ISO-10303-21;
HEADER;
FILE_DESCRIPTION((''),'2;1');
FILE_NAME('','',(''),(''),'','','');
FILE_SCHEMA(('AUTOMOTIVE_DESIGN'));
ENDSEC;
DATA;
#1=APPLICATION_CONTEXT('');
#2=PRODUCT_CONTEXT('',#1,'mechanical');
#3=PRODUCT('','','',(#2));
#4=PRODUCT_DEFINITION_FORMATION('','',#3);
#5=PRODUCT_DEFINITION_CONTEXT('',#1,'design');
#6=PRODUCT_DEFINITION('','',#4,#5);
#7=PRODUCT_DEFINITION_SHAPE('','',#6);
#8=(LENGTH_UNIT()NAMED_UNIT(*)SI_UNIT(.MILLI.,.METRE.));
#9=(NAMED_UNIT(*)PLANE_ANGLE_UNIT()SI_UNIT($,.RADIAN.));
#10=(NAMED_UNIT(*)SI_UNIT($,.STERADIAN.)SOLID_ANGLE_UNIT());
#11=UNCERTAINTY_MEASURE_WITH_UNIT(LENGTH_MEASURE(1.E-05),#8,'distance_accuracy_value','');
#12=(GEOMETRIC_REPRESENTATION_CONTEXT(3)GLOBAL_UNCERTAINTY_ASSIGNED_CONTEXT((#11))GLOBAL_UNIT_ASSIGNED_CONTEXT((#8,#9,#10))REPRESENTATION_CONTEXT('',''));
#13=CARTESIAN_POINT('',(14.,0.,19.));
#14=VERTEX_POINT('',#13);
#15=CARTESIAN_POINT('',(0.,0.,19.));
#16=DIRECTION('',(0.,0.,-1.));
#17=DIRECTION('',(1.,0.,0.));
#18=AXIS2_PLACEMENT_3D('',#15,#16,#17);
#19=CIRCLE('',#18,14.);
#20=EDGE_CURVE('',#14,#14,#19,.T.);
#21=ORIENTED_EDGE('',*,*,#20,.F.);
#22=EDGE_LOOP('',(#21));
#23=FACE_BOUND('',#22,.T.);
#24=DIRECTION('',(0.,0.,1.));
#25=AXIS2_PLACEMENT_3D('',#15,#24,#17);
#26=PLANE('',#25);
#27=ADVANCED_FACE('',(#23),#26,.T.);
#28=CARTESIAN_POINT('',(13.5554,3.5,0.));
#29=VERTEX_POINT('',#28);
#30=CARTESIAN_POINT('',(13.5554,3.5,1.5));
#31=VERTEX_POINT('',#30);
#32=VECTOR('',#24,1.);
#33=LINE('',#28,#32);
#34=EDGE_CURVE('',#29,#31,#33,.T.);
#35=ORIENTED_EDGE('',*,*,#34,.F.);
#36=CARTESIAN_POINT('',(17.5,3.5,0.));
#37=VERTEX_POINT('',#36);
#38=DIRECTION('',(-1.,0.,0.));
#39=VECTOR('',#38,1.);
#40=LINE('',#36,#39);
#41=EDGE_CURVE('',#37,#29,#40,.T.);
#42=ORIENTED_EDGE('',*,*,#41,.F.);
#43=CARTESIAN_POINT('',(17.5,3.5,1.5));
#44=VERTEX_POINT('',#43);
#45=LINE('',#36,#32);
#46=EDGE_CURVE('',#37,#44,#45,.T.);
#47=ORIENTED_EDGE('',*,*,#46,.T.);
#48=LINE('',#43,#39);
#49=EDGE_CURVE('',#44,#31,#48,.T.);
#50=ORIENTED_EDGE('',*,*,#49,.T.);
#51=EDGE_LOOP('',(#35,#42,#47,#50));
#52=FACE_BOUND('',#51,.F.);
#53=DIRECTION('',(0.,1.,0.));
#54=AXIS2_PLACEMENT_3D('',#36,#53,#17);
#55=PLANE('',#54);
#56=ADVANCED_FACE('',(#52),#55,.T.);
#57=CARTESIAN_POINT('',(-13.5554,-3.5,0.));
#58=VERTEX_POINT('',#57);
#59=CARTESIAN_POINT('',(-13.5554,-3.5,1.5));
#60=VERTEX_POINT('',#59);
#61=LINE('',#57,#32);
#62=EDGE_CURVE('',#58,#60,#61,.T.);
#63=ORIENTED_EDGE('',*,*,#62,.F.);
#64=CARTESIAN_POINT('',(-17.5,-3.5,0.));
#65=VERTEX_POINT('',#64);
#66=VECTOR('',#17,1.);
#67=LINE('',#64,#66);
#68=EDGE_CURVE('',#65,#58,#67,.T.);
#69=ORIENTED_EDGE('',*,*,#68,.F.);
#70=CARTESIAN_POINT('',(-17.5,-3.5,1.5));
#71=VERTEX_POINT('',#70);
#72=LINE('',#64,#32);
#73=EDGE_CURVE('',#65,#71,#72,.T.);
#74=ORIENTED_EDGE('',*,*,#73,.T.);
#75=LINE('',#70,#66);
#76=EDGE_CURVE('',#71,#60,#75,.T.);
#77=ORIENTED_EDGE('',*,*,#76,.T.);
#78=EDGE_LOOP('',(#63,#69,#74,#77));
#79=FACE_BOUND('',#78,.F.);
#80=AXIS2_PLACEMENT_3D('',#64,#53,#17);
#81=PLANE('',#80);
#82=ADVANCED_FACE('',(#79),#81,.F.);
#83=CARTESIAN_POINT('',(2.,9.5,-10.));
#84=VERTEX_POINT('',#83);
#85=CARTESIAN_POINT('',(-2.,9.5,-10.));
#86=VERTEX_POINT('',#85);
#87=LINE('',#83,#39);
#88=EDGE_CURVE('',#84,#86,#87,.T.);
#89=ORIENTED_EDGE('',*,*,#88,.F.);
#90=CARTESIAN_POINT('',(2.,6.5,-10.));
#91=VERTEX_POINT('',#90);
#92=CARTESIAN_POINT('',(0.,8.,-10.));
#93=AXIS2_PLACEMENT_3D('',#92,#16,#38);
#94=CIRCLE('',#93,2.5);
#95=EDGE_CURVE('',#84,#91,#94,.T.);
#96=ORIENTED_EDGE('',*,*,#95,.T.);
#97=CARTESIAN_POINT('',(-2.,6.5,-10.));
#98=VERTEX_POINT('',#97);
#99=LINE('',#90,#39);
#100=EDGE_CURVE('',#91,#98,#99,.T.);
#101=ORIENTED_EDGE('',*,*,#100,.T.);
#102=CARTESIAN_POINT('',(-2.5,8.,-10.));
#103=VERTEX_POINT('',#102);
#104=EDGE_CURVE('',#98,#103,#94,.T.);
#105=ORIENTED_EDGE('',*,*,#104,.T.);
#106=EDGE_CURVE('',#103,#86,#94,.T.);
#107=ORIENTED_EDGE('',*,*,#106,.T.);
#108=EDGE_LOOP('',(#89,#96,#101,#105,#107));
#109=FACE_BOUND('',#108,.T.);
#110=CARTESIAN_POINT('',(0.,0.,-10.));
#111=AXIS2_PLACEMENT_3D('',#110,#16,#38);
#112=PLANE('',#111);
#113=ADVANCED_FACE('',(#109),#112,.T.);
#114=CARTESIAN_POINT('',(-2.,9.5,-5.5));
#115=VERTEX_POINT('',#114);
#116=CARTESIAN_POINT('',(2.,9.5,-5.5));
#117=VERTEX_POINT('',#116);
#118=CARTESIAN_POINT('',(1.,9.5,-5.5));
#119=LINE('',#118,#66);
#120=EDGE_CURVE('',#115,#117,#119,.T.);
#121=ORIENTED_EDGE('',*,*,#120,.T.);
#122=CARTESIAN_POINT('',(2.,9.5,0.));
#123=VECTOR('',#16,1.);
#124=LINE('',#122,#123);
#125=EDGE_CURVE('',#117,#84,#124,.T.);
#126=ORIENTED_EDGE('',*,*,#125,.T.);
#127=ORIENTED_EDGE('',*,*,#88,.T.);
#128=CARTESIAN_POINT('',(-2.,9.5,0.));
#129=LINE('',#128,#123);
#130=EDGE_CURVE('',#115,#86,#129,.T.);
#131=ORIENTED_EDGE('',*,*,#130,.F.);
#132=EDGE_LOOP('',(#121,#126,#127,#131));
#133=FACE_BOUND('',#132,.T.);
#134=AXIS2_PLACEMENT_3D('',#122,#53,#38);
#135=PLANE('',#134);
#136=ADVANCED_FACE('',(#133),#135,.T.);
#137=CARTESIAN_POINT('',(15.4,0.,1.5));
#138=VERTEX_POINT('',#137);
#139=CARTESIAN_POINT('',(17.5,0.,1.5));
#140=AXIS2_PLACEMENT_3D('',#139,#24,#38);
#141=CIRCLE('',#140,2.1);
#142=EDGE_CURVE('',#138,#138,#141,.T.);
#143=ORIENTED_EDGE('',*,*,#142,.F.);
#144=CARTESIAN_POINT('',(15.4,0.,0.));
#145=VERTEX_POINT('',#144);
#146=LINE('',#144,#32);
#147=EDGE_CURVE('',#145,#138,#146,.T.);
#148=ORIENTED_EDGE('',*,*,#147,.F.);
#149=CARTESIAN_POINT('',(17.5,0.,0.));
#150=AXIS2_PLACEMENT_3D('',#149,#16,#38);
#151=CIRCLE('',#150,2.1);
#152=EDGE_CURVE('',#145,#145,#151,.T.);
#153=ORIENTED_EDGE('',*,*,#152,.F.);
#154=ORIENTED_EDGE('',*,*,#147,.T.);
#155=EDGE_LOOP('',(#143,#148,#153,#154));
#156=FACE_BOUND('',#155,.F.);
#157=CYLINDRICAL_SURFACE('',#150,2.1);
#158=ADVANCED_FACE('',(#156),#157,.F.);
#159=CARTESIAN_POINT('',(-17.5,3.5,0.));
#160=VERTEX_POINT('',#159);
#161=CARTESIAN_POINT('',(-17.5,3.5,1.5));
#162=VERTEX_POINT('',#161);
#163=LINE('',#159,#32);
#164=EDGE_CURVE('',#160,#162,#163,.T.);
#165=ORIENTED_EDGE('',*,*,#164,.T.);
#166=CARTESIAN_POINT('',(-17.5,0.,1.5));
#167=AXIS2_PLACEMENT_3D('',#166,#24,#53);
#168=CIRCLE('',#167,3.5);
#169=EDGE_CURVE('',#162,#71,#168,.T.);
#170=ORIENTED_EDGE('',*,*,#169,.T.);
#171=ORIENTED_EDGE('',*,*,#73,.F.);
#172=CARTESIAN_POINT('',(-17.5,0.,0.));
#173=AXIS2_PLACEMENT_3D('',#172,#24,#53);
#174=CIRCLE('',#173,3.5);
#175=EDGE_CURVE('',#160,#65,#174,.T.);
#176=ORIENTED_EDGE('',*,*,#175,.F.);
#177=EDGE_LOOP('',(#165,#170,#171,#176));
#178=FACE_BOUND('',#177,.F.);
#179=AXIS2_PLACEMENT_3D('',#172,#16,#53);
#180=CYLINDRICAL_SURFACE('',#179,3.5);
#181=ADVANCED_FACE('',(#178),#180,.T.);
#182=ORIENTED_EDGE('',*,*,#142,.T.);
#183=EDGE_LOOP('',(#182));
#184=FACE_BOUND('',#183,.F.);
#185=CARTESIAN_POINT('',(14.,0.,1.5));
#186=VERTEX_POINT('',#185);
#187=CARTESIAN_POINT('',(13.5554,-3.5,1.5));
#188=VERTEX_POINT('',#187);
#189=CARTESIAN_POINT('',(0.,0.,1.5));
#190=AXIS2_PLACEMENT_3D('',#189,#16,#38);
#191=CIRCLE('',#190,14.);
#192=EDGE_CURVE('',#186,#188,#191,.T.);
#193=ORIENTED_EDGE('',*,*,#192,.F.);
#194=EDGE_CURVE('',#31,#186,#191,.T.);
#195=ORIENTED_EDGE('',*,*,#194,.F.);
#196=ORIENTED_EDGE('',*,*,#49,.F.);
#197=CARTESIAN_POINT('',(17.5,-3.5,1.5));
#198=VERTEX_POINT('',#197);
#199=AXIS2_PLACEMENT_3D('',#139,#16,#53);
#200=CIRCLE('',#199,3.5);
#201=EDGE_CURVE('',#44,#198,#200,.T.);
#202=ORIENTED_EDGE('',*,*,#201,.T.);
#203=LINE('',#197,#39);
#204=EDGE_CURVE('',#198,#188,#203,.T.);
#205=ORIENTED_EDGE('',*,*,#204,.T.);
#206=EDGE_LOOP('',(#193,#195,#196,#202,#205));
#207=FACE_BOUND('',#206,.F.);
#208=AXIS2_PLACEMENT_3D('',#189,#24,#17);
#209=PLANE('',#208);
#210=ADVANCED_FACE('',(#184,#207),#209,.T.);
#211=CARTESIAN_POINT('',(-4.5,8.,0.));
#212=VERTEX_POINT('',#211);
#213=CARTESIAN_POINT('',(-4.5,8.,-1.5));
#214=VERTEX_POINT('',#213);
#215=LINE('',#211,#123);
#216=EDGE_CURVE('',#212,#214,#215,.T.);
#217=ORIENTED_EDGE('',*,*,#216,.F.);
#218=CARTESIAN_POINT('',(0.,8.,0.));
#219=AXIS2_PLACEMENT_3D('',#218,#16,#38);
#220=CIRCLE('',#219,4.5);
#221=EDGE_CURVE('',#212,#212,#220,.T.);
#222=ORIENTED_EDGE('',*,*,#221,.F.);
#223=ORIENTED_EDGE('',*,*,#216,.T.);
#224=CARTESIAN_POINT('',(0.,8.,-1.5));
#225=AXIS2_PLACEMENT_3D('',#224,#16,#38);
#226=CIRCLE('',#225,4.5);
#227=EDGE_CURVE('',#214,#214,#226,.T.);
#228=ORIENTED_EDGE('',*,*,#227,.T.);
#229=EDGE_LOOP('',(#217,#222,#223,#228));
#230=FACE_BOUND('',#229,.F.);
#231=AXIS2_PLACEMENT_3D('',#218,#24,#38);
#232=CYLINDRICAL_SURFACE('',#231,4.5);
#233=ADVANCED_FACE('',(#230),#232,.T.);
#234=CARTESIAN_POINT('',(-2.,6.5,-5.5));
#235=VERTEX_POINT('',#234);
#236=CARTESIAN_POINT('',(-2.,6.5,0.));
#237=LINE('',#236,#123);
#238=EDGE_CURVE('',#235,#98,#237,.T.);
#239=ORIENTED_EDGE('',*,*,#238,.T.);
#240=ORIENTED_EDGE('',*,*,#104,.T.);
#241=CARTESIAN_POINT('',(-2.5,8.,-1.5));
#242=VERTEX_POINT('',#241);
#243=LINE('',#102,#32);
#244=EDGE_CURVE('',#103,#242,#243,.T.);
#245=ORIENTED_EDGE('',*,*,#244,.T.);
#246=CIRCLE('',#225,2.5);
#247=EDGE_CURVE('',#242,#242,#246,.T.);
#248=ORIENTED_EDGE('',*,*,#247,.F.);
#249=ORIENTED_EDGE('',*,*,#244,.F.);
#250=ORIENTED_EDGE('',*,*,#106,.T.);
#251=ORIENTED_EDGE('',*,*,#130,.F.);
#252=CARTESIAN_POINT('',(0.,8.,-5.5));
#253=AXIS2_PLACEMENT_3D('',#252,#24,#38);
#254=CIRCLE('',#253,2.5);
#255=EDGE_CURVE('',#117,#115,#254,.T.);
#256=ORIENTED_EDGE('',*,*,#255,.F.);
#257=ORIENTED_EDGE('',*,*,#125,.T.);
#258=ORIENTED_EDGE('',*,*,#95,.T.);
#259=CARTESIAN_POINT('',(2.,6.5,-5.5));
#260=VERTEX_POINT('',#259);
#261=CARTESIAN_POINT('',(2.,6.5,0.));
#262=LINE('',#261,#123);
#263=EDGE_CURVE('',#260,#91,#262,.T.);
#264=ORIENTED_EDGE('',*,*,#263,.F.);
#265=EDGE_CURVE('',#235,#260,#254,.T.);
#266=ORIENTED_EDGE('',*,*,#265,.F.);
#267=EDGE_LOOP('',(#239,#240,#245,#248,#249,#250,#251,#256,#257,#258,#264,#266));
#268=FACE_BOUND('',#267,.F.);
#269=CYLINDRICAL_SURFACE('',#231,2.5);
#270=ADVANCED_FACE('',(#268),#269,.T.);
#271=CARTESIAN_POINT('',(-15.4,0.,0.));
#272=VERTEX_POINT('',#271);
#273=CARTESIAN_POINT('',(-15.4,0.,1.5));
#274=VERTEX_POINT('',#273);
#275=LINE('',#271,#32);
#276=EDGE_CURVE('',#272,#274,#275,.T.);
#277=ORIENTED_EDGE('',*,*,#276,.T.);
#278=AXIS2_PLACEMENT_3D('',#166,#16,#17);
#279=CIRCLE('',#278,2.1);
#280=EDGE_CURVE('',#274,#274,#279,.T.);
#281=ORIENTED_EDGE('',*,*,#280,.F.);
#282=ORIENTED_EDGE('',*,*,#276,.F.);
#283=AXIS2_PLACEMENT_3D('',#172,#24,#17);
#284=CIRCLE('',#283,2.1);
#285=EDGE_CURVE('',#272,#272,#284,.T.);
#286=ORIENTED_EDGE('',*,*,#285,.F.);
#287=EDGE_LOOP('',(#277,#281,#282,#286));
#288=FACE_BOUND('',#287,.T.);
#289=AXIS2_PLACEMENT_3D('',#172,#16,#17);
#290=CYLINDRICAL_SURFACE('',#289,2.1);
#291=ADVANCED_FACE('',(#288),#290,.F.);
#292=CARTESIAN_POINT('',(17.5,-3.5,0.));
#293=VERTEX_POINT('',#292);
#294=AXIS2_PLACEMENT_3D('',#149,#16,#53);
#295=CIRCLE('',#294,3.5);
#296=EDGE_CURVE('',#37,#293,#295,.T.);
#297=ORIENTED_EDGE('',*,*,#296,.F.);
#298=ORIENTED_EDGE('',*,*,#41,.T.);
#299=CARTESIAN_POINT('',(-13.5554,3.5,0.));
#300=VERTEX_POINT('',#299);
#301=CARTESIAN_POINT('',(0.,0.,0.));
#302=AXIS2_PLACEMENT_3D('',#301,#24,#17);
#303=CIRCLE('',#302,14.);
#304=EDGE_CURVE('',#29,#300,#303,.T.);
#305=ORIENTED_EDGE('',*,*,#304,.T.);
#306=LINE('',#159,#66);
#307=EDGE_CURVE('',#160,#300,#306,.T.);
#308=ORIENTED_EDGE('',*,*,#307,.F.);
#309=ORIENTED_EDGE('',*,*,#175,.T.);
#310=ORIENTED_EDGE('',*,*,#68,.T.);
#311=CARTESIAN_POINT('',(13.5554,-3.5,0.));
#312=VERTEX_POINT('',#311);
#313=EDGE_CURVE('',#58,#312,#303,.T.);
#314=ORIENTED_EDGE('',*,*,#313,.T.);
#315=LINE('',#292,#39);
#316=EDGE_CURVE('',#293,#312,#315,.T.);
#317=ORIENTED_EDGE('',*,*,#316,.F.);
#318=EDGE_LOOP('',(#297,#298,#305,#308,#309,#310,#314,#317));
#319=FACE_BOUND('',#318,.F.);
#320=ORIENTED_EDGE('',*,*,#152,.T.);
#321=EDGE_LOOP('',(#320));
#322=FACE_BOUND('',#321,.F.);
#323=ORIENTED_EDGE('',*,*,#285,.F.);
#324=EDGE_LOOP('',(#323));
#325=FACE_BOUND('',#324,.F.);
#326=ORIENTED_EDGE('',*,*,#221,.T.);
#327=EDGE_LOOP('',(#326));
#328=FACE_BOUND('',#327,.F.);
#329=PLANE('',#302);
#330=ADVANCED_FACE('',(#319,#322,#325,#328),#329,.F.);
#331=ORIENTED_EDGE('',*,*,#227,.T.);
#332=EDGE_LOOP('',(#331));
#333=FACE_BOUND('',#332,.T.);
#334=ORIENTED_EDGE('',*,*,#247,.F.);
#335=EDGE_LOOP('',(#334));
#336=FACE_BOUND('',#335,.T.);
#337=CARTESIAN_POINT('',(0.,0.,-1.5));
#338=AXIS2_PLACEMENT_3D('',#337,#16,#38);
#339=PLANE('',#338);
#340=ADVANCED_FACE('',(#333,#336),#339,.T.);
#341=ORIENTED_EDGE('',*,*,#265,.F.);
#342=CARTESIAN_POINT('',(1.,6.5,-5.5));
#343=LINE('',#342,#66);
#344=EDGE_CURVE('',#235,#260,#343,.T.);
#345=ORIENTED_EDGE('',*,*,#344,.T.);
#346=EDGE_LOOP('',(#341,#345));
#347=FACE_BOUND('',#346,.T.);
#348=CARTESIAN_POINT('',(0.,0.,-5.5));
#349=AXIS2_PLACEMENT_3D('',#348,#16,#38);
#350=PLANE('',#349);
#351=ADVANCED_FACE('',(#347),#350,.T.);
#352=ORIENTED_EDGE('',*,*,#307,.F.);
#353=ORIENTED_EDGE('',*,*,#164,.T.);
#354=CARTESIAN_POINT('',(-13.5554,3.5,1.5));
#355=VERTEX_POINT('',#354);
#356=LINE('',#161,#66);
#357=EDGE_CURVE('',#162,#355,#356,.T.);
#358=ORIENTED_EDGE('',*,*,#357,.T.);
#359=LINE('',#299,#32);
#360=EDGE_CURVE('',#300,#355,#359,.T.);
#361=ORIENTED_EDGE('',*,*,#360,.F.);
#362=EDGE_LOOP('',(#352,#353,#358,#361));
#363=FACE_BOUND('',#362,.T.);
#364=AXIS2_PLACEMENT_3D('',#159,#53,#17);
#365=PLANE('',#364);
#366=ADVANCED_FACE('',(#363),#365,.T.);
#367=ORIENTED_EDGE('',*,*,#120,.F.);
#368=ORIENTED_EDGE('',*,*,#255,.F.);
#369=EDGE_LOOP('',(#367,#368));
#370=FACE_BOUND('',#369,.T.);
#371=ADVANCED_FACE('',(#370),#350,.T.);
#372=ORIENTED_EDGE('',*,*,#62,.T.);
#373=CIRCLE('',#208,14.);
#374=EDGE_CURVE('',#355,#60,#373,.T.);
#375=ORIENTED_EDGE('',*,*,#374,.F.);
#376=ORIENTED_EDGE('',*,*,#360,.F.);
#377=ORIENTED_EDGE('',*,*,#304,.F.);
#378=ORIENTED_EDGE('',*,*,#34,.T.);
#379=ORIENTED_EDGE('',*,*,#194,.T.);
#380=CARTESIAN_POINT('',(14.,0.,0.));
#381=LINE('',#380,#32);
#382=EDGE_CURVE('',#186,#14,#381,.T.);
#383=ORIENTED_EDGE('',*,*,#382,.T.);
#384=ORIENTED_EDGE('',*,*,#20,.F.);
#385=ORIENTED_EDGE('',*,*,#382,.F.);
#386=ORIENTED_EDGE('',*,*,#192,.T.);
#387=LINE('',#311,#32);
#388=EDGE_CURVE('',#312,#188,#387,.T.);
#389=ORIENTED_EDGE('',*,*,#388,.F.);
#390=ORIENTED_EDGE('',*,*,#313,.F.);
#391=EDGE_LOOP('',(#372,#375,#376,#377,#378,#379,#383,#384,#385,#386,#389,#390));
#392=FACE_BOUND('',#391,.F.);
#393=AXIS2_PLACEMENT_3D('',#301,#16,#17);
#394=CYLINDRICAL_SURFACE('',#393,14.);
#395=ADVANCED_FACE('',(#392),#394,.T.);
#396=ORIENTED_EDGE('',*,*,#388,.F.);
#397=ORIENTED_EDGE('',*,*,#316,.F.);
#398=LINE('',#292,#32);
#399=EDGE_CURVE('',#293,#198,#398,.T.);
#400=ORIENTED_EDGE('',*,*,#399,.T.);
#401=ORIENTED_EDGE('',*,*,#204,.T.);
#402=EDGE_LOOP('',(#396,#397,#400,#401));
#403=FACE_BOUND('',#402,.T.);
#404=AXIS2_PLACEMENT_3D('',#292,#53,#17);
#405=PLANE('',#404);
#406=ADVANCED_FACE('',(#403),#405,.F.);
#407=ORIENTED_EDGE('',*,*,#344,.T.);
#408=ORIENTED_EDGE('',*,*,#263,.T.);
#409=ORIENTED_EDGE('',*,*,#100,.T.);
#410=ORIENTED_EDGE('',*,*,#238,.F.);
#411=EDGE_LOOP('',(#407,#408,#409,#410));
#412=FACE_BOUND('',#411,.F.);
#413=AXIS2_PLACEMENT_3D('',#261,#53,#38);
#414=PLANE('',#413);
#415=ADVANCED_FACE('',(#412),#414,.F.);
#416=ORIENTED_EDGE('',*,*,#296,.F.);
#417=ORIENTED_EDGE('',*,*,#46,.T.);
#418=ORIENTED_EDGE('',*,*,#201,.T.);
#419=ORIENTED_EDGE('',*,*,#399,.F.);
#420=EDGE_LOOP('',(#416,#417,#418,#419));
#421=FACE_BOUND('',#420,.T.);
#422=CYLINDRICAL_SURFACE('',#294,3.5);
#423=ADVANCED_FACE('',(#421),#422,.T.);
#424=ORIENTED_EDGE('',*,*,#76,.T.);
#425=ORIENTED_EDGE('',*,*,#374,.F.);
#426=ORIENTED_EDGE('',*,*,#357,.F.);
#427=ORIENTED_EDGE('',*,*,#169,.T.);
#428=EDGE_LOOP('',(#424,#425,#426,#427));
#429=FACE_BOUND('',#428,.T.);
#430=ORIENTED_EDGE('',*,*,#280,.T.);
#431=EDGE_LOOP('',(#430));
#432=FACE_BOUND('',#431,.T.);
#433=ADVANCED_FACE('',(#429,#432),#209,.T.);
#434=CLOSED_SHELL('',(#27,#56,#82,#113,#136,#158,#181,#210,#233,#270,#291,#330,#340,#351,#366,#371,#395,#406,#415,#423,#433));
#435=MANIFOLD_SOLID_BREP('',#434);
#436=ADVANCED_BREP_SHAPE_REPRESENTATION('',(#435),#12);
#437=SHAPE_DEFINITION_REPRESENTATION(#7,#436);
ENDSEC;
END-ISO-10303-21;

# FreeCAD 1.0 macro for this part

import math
import FreeCAD as App
import Part
import Sketcher
Q = App.Units.Quantity

doc = App.newDocument("Part")
body = doc.addObject("PartDesign::Body", "Body")

# Sketch on XY plane
sketch1 = body.newObject("Sketcher::SketchObject", "Sketch")
sketch1.AttachmentSupport = (doc.getObject("XY_Plane"), [""])
sketch1.MapMode = "FlatFace"
sketch1.addGeometry(Part.Circle(App.Vector(0, 0, 0), App.Vector(0, 0, 1), 14), False)
sketch1.addConstraint([
    Sketcher.Constraint("Coincident", 0, 3, -1, 1),
    Sketcher.Constraint("Diameter", 0, Q("28 mm")),
])
pad1 = body.newObject("PartDesign::Pad", "Pad")
pad1.Profile = sketch1
pad1.Length = 19

# Sketch on XY plane
sketch2 = body.newObject("Sketcher::SketchObject", "Sketch001")
sketch2.AttachmentSupport = (doc.getObject("XY_Plane"), [""])
sketch2.MapMode = "FlatFace"
sketch2.addGeometry([
    Part.ArcOfCircle(Part.Circle(App.Vector(0, 0, 0), App.Vector(0, 0, 1), 14), math.radians(165.522445), math.radians(194.477555)),  # 0
    Part.LineSegment(App.Vector(-13.5554, 3.5, 0), App.Vector(-17.5, 3.5, 0)),  # 1
    Part.ArcOfCircle(Part.Circle(App.Vector(-17.5, 0, 0), App.Vector(0, 0, 1), 3.5), math.radians(90), math.radians(270)),  # 2
    Part.LineSegment(App.Vector(-17.5, -3.5, 0), App.Vector(-13.5554, -3.5, 0)),  # 3
    Part.Circle(App.Vector(-17.5, 0, 0), App.Vector(0, 0, 1), 2.1),  # 4
], False)
sketch2.addConstraint([
    Sketcher.Constraint("Coincident", 0, 1, 1, 1),
    Sketcher.Constraint("Tangent", 1, 2, 2, 1),
    Sketcher.Constraint("Tangent", 2, 2, 3, 1),
    Sketcher.Constraint("Coincident", 3, 2, 0, 2),
    Sketcher.Constraint("Horizontal", 1),
    Sketcher.Constraint("Horizontal", 3),
    Sketcher.Constraint("Coincident", 0, 3, -1, 1),
    Sketcher.Constraint("Coincident", 4, 3, 2, 3),
    Sketcher.Constraint("PointOnObject", 2, 3, -1),
    Sketcher.Constraint("Radius", 0, Q("14 mm")),
    Sketcher.Constraint("Diameter", 4, Q("4.2 mm")),
    Sketcher.Constraint("Radius", 2, Q("3.5 mm")),
    Sketcher.Constraint("DistanceX", 2, 3, -1, 1, Q("17.5 mm")),
])
pad2 = body.newObject("PartDesign::Pad", "Pad001")
pad2.Profile = sketch2
pad2.Length = 1.5
doc.recompute()

mirrored = body.newObject("PartDesign::Mirrored", "Mirrored")
mirrored.Originals = [pad2]
mirrored.MirrorPlane = (doc.getObject("YZ_Plane"), [""])
body.Tip = mirrored

# Sketch on XY plane
sketch3 = body.newObject("Sketcher::SketchObject", "Sketch002")
sketch3.AttachmentSupport = (doc.getObject("XY_Plane"), [""])
sketch3.MapMode = "FlatFace"
sketch3.addGeometry(Part.Circle(App.Vector(0, 8, 0), App.Vector(0, 0, 1), 4.5), False)
sketch3.addConstraint([
    Sketcher.Constraint("PointOnObject", 0, 3, -2),
    Sketcher.Constraint("Diameter", 0, Q("9 mm")),
    Sketcher.Constraint("DistanceY", -1, 1, 0, 3, Q("8 mm")),
])
pad3 = body.newObject("PartDesign::Pad", "Pad002")
pad3.Profile = sketch3
pad3.Length = 1.5
pad3.Reversed = True

# Sketch on XY plane
sketch4 = body.newObject("Sketcher::SketchObject", "Sketch003")
sketch4.AttachmentSupport = (doc.getObject("XY_Plane"), [""])
sketch4.MapMode = "FlatFace"
sketch4.addGeometry(Part.Circle(App.Vector(0, 8, 0), App.Vector(0, 0, 1), 2.5), False)
sketch4.addConstraint([
    Sketcher.Constraint("PointOnObject", 0, 3, -2),
    Sketcher.Constraint("Diameter", 0, Q("5 mm")),
    Sketcher.Constraint("DistanceY", -1, 1, 0, 3, Q("8 mm")),
])
pad4 = body.newObject("PartDesign::Pad", "Pad003")
pad4.Profile = sketch4
pad4.Length = 5.5
pad4.Reversed = True

# Sketch on XY plane
sketch5 = body.newObject("Sketcher::SketchObject", "Sketch004")
sketch5.AttachmentSupport = (doc.getObject("XY_Plane"), [""])
sketch5.MapMode = "FlatFace"
sketch5.addGeometry([
    Part.ArcOfCircle(Part.Circle(App.Vector(0, 8, 0), App.Vector(0, 0, 1), 2.5), math.radians(143.130102), math.radians(216.869898)),
    Part.LineSegment(App.Vector(-2, 9.5, 0), App.Vector(2, 9.5, 0)),
    Part.ArcOfCircle(Part.Circle(App.Vector(0, 8, 0), App.Vector(0, 0, 1), 2.5), math.radians(-36.869898), math.radians(36.869898)),
    Part.LineSegment(App.Vector(2, 6.5, 0), App.Vector(-2, 6.5, 0)),
], False)
sketch5.addConstraint([
    Sketcher.Constraint("Coincident", 0, 1, 1, 1),
    Sketcher.Constraint("Coincident", 1, 2, 2, 2),
    Sketcher.Constraint("Coincident", 2, 1, 3, 1),
    Sketcher.Constraint("Coincident", 3, 2, 0, 2),
    Sketcher.Constraint("Horizontal", 1),
    Sketcher.Constraint("Horizontal", 3),
    Sketcher.Constraint("Coincident", 2, 3, 0, 3),
    Sketcher.Constraint("Equal", 0, 2),
    Sketcher.Constraint("PointOnObject", 0, 3, -2),
    Sketcher.Constraint("Vertical", 1, 2, 2, 1),
    Sketcher.Constraint("Radius", 0, Q("2.5 mm")),
    Sketcher.Constraint("DistanceY", -1, 1, 0, 3, Q("8 mm")),
    Sketcher.Constraint("DistanceX", 1, 1, 1, 2, Q("4 mm")),
])
pad5 = body.newObject("PartDesign::Pad", "Pad004")
pad5.Profile = sketch5
pad5.Length = 10
pad5.Reversed = True

doc.recompute()
